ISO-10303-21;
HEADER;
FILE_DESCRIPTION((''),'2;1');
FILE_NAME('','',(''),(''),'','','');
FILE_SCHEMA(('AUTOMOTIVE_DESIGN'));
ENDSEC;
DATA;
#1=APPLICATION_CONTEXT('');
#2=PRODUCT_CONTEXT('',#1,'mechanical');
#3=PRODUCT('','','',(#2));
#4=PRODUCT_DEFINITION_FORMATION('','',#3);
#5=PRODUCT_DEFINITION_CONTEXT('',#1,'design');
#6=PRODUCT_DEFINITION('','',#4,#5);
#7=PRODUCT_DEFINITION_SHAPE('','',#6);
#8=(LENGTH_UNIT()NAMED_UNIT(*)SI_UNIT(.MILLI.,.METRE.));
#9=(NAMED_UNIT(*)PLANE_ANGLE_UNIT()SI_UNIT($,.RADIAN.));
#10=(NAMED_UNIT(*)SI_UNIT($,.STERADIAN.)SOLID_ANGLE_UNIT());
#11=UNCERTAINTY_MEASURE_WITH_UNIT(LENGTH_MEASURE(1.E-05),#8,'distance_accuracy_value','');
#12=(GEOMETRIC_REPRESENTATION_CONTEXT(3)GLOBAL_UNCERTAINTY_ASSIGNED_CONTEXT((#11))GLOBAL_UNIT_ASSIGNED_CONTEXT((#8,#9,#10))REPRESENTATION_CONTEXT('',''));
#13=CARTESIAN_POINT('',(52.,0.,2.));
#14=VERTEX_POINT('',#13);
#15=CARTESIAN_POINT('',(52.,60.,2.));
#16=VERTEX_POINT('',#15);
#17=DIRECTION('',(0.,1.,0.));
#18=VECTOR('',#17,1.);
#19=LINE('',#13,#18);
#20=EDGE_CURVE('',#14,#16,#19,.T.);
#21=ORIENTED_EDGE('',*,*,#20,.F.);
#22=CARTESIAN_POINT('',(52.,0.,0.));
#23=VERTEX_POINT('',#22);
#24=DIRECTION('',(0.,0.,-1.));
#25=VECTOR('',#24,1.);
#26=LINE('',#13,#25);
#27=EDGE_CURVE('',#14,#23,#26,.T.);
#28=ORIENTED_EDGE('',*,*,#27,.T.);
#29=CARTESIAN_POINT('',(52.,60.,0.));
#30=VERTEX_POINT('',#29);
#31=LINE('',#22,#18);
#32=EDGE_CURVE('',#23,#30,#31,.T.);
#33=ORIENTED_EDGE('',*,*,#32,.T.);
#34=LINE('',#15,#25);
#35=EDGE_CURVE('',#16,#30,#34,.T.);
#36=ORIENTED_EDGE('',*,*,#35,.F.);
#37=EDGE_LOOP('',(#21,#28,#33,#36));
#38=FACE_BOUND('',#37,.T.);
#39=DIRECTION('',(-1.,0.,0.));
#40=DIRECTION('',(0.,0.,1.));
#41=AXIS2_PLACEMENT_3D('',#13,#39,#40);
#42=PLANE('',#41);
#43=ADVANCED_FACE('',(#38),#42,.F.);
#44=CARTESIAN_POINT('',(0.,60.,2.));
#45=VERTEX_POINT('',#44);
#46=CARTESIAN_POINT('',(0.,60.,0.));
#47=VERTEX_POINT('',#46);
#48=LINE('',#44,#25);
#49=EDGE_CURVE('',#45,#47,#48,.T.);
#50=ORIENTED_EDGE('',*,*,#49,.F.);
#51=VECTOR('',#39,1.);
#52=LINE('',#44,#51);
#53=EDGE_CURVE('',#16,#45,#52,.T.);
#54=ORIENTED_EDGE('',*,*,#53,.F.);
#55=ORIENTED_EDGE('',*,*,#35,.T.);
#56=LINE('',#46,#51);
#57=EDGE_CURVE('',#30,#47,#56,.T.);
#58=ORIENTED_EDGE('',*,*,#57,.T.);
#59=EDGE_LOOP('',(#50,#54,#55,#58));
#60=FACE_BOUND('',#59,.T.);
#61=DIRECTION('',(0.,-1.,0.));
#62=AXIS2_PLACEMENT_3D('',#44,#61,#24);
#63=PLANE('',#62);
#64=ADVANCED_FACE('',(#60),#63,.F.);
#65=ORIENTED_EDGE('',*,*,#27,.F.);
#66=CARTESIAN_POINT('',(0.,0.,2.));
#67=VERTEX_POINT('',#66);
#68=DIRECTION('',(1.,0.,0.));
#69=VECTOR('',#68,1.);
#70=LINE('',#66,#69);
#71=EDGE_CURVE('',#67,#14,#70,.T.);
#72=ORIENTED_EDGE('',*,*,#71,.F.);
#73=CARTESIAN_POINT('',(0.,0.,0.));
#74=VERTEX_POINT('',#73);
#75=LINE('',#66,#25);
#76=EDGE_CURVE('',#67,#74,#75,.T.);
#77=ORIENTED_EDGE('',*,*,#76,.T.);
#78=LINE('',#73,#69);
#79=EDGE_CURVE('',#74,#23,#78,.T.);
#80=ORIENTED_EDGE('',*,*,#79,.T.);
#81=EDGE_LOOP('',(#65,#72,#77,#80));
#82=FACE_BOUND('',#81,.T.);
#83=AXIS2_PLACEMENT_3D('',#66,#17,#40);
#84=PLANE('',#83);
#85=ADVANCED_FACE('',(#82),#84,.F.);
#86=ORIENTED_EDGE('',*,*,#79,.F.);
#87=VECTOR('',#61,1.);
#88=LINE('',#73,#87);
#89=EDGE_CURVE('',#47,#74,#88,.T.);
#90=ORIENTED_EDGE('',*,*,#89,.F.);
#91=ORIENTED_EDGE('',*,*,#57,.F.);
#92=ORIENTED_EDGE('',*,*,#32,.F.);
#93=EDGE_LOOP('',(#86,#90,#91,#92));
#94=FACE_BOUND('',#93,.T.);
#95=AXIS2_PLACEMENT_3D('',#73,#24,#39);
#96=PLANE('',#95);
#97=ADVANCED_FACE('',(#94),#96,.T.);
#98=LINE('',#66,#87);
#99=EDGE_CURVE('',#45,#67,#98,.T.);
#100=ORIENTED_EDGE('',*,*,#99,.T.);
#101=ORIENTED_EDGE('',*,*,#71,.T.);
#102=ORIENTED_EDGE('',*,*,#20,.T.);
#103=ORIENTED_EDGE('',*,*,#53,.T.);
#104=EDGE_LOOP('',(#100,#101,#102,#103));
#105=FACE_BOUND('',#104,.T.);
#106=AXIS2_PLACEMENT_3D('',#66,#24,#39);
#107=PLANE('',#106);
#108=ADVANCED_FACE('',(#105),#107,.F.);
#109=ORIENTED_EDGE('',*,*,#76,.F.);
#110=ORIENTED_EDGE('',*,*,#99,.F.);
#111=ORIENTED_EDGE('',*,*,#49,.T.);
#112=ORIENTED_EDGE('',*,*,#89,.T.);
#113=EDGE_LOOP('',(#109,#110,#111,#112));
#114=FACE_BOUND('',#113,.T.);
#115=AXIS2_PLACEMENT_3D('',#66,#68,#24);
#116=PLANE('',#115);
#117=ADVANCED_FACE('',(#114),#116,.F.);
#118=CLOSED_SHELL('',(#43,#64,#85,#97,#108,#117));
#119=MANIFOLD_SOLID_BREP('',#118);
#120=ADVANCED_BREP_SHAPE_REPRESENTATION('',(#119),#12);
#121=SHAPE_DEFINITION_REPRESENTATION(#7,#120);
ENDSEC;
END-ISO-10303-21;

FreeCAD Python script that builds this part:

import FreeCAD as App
import Part
import Sketcher
Q = App.Units.Quantity


def add_polygon(sketch, points):
    """Adds a closed chain of lines whose ends are joined by coincident constraints."""
    first, n = sketch.GeometryCount, len(points)
    for a, b in zip(points, points[1:] + points[:1]):
        sketch.addGeometry(Part.LineSegment(App.Vector(*a, 0), App.Vector(*b, 0)), False)
    for i in range(n):
        sketch.addConstraint(Sketcher.Constraint("Coincident", first + i, 2, first + (i + 1) % n, 1))

doc = App.newDocument("Part")
body = doc.addObject("PartDesign::Body", "Body")

sketch1 = body.newObject("Sketcher::SketchObject", "Sketch")
sketch1.AttachmentSupport = (doc.getObject("XY_Plane"), [""])
sketch1.MapMode = "FlatFace"
add_polygon(sketch1, [(0, 60), (0, 0), (52, 0), (52, 60)])
sketch1.addConstraint(Sketcher.Constraint("Vertical", 0))
sketch1.addConstraint(Sketcher.Constraint("Horizontal", 1))
sketch1.addConstraint(Sketcher.Constraint("Vertical", 2))
sketch1.addConstraint(Sketcher.Constraint("Horizontal", 3))
sketch1.addConstraint(Sketcher.Constraint("Coincident", 0, 2, -1, 1))
sketch1.addConstraint(Sketcher.Constraint("DistanceX", 1, 1, 1, 2, Q("52 mm")))
sketch1.addConstraint(Sketcher.Constraint("DistanceY", 0, 2, 0, 1, Q("60 mm")))
pad1 = body.newObject("PartDesign::Pad", "Pad")
pad1.Profile = sketch1
pad1.Length = 2

doc.recompute()
